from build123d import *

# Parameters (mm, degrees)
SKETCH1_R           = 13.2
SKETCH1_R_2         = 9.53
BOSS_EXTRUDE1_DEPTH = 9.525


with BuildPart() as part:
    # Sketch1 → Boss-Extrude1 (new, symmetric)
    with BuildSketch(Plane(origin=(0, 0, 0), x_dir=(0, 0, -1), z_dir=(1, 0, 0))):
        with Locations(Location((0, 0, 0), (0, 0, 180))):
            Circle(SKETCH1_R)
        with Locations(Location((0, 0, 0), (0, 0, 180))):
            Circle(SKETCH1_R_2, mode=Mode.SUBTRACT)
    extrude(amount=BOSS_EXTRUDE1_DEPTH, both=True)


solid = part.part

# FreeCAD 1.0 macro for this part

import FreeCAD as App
import Part
import Sketcher

doc = App.newDocument("Part")
params = doc.addObject("Spreadsheet::Sheet", "Params")
for row, (alias, value) in enumerate([
    ("sketch1_diameter", "26.4 mm"),
    ("sketch1_diameter2", "19.06 mm"),
    ("pad1_length", "19.05 mm"),
], start=1):
    params.set(f"A{row}", alias)
    params.set(f"B{row}", "=" + value)
    params.setAlias(f"B{row}", alias)

body = doc.addObject("PartDesign::Body", "Body")

sketch1 = body.newObject("Sketcher::SketchObject", "Sketch")
sketch1.AttachmentSupport = (doc.getObject("YZ_Plane"), [""])
sketch1.MapMode = "FlatFace"
sketch1.addGeometry([
    Part.Circle(App.Vector(0, 0, 0), App.Vector(0, 0, 1), 13),
    Part.Circle(App.Vector(0, 0, 0), App.Vector(0, 0, 1), 10),
], False)
sketch1.addConstraint([
    Sketcher.Constraint("Coincident", 0, 3, -1, 1),
    Sketcher.Constraint("Coincident", 1, 3, -1, 1),
    Sketcher.Constraint("Diameter", 0, 26.4),
    Sketcher.Constraint("Diameter", 1, 19.06),
])
sketch1.setExpression("Constraints[2]", "Params.sketch1_diameter")
sketch1.setExpression("Constraints[3]", "Params.sketch1_diameter2")
pad1 = body.newObject("PartDesign::Pad", "Pad")
pad1.Profile = sketch1
pad1.setExpression("Length", "Params.pad1_length")
pad1.Midplane = True

doc.recompute()
